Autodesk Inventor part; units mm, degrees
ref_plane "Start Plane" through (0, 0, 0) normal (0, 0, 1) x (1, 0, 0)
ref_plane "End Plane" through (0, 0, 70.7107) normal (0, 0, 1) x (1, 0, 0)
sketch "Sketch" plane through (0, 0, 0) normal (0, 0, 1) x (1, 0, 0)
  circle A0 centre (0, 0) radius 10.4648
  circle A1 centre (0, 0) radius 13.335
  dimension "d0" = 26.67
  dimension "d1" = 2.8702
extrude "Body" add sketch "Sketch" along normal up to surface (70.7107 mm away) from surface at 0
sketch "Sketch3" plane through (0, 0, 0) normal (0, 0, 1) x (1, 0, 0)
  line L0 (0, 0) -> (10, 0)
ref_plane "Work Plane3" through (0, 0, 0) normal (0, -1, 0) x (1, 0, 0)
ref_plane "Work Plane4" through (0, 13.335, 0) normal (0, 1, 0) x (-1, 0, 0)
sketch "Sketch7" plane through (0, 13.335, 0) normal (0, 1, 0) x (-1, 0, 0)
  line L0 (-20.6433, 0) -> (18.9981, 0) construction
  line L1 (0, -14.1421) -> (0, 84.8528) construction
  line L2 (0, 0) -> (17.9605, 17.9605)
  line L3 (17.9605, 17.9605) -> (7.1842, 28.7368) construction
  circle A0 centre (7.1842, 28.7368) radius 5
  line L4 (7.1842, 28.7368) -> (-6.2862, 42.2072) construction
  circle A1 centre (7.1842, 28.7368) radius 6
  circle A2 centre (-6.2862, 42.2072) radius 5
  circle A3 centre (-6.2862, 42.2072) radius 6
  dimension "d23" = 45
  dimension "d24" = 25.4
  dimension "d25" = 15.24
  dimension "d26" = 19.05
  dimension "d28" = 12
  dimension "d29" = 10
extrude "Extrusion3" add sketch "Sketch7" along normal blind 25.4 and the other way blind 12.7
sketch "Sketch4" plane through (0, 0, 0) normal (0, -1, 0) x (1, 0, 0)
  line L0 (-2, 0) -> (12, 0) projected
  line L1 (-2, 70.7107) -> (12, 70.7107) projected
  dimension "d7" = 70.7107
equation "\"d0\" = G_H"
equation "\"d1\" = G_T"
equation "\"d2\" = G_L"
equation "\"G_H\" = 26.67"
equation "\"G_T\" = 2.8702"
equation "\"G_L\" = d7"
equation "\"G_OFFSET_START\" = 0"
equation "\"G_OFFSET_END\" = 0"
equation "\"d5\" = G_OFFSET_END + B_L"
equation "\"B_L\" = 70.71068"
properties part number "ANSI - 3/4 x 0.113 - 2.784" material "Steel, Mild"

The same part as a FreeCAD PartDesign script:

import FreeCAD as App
import Part
import Sketcher
Q = App.Units.Quantity

doc = App.newDocument("Part")
body = doc.addObject("PartDesign::Body", "Body")

# Sketch on XY plane
sketch1 = body.newObject("Sketcher::SketchObject", "Sketch")
sketch1.AttachmentSupport = (doc.getObject("XY_Plane"), [""])
sketch1.MapMode = "FlatFace"
sketch1.addGeometry([
    Part.Circle(App.Vector(0, 0, 0), App.Vector(0, 0, 1), 13),
    Part.Circle(App.Vector(0, 0, 0), App.Vector(0, 0, 1), 10),
], False)
sketch1.addConstraint([
    Sketcher.Constraint("Coincident", 0, 3, -1, 1),
    Sketcher.Constraint("Coincident", 1, 3, -1, 1),
    Sketcher.Constraint("Diameter", 0, Q("1.05 in")),
    Sketcher.Constraint("Diameter", 1, Q("0.824 in")),
])
pad1 = body.newObject("PartDesign::Pad", "Pad")
pad1.Profile = sketch1
pad1.Length = 70.7107

# Sketch on XZ plane
sketch2 = body.newObject("Sketcher::SketchObject", "Sketch001")
sketch2.AttachmentSupport = (doc.getObject("XZ_Plane"), [""])
sketch2.MapMode = "FlatFace"
sketch2.AttachmentOffset = App.Placement(App.Vector(0, 0, -0.525 * 25.4), App.Rotation())
sketch2.addGeometry([
    Part.Circle(App.Vector(-7, 29, 0), App.Vector(0, 0, 1), 6),
    Part.Circle(App.Vector(-7, 29, 0), App.Vector(0, 0, 1), 5),
    Part.Circle(App.Vector(6, 42, 0), App.Vector(0, 0, 1), 6),
    Part.Circle(App.Vector(6, 42, 0), App.Vector(0, 0, 1), 5),
], False)
sketch2.addConstraint([
    Sketcher.Constraint("Coincident", 1, 3, 0, 3),
    Sketcher.Constraint("Coincident", 3, 3, 2, 3),
    Sketcher.Constraint("Equal", 0, 2),
    Sketcher.Constraint("Equal", 1, 3),
    Sketcher.Constraint("Diameter", 1, Q("0.3937 in")),
    Sketcher.Constraint("Diameter", 0, 12.0),
    Sketcher.Constraint("DistanceX", -1, 1, 2, 3, Q("0.2475 in")),
    Sketcher.Constraint("DistanceY", -1, 1, 2, 3, Q("1.6617 in")),
    Sketcher.Constraint("DistanceX", 0, 3, -1, 1, 7.1842),
    Sketcher.Constraint("DistanceY", -1, 1, 0, 3, 28.7368),
])
pad2 = body.newObject("PartDesign::Pad", "Pad001")
pad2.Profile = sketch2
pad2.Type = "TwoLengths"
pad2.Length = Q("1 in")
pad2.Length2 = Q("0.5 in")
pad2.Reversed = True

doc.recompute()
